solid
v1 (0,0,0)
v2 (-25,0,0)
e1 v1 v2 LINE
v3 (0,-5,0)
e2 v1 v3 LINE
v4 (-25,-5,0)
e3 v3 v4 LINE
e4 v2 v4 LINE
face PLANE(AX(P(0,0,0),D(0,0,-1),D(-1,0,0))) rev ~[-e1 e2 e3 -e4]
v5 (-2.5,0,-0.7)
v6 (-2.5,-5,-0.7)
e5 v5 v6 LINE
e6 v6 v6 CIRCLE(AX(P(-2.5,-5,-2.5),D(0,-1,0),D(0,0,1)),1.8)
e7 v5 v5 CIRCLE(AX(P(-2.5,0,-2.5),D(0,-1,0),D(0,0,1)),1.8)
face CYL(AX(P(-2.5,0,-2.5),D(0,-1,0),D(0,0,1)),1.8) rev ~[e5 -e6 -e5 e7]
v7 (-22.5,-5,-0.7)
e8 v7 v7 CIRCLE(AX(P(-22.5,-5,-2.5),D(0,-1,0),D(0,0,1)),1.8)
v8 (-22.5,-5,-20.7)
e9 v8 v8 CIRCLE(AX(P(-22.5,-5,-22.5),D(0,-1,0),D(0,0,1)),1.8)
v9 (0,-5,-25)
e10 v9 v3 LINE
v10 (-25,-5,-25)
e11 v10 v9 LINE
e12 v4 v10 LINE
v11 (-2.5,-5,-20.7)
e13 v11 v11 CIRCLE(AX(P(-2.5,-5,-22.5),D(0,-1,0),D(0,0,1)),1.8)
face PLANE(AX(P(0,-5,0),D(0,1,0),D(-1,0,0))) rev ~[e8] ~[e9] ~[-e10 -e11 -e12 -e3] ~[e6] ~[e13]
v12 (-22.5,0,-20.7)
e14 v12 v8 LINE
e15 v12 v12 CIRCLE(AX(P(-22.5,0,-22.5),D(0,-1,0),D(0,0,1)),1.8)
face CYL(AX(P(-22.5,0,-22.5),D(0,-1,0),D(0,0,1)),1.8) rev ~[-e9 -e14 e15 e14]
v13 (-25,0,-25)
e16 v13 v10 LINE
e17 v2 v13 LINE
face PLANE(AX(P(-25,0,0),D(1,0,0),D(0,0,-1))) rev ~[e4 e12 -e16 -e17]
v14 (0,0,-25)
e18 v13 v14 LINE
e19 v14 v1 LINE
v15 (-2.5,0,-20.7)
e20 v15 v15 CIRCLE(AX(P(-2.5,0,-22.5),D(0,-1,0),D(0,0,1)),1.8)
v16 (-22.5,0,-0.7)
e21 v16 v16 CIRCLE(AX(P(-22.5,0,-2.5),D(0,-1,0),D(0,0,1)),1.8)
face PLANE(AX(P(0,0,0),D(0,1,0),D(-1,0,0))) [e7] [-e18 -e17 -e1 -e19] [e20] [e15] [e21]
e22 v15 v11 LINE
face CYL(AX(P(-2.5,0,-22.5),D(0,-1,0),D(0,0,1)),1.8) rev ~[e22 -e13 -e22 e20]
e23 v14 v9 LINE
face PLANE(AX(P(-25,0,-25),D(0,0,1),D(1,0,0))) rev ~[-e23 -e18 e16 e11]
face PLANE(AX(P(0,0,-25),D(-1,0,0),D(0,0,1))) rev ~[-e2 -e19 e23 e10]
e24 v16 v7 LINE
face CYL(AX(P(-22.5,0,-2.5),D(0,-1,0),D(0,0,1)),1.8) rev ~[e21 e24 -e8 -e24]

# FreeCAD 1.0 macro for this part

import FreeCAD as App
import Part
import Sketcher


def add_polygon(sketch, points):
    """Adds a closed chain of lines whose ends are joined by coincident constraints."""
    first, n = sketch.GeometryCount, len(points)
    for a, b in zip(points, points[1:] + points[:1]):
        sketch.addGeometry(Part.LineSegment(App.Vector(*a, 0), App.Vector(*b, 0)), False)
    for i in range(n):
        sketch.addConstraint(Sketcher.Constraint("Coincident", first + i, 2, first + (i + 1) % n, 1))

doc = App.newDocument("Part")
params = doc.addObject("Spreadsheet::Sheet", "Params")
for row, (alias, value) in enumerate([
    ("sketch1_width", "25 mm"),
    ("pad1_length", "5 mm"),
    ("sketch2_diameter", "3.6 mm"),
    ("hole_diameter", "3.6 mm"),
], start=1):
    params.set(f"A{row}", alias)
    params.set(f"B{row}", "=" + value)
    params.setAlias(f"B{row}", alias)

body = doc.addObject("PartDesign::Body", "Body")

# Sketch on XZ plane
sketch1 = body.newObject("Sketcher::SketchObject", "Sketch")
sketch1.AttachmentSupport = (doc.getObject("XZ_Plane"), [""])
sketch1.MapMode = "FlatFace"
add_polygon(sketch1, [(-25, 0), (0, 0), (0, -25), (-25, -25)])  # lines 0-3
sketch1.addConstraint([
    Sketcher.Constraint("Horizontal", 0),
    Sketcher.Constraint("Vertical", 1),
    Sketcher.Constraint("Horizontal", 2),
    Sketcher.Constraint("Vertical", 3),
    Sketcher.Constraint("Coincident", 0, 2, -1, 1),
    Sketcher.Constraint("Equal", 2, 1),
    Sketcher.Constraint("DistanceX", 0, 1, 0, 2, 25.0),
])
sketch1.setExpression("Constraints[10]", "Params.sketch1_width")
pad1 = body.newObject("PartDesign::Pad", "Pad")
pad1.Profile = sketch1
pad1.setExpression("Length", "Params.pad1_length")

# Sketch on XZ plane
sketch2 = body.newObject("Sketcher::SketchObject", "Sketch001")
sketch2.AttachmentSupport = (doc.getObject("XZ_Plane"), [""])
sketch2.MapMode = "FlatFace"
sketch2.addGeometry([
    Part.Circle(App.Vector(-2.5, -22.5, 0), App.Vector(0, 0, 1), 1.8),
    Part.Circle(App.Vector(-22.5, -22.5, 0), App.Vector(0, 0, 1), 1.8),
    Part.Circle(App.Vector(-22.5, -2.5, 0), App.Vector(0, 0, 1), 1.8),
    Part.Circle(App.Vector(-2.5, -2.5, 0), App.Vector(0, 0, 1), 1.8),
], False)
sketch2.addConstraint([
    Sketcher.Constraint("Equal", 0, 1),
    Sketcher.Constraint("Equal", 1, 2),
    Sketcher.Constraint("Equal", 2, 3),
    Sketcher.Constraint("Horizontal", 0, 3, 1, 3),
    Sketcher.Constraint("Horizontal", 2, 3, 3, 3),
    Sketcher.Constraint("Vertical", 1, 3, 2, 3),
    Sketcher.Constraint("Vertical", 0, 3, 3, 3),
    Sketcher.Constraint("Diameter", 0, 3.6),
    Sketcher.Constraint("DistanceX", 1, 3, 0, 3, 20.0),
    Sketcher.Constraint("DistanceY", 1, 3, 2, 3, 20.0),
    Sketcher.Constraint("DistanceX", 0, 3, -1, 1, 2.5),
    Sketcher.Constraint("DistanceY", 0, 3, -1, 1, 22.5),
])
sketch2.setExpression("Constraints[7]", "Params.sketch2_diameter")
doc.recompute()
hole = body.newObject("PartDesign::Hole", "Hole")
hole.Profile = sketch2
hole.ThreadType = "None"
hole.setExpression("Diameter", "Params.hole_diameter")
hole.DepthType = "ThroughAll"
hole.Reversed = True

doc.recompute()
